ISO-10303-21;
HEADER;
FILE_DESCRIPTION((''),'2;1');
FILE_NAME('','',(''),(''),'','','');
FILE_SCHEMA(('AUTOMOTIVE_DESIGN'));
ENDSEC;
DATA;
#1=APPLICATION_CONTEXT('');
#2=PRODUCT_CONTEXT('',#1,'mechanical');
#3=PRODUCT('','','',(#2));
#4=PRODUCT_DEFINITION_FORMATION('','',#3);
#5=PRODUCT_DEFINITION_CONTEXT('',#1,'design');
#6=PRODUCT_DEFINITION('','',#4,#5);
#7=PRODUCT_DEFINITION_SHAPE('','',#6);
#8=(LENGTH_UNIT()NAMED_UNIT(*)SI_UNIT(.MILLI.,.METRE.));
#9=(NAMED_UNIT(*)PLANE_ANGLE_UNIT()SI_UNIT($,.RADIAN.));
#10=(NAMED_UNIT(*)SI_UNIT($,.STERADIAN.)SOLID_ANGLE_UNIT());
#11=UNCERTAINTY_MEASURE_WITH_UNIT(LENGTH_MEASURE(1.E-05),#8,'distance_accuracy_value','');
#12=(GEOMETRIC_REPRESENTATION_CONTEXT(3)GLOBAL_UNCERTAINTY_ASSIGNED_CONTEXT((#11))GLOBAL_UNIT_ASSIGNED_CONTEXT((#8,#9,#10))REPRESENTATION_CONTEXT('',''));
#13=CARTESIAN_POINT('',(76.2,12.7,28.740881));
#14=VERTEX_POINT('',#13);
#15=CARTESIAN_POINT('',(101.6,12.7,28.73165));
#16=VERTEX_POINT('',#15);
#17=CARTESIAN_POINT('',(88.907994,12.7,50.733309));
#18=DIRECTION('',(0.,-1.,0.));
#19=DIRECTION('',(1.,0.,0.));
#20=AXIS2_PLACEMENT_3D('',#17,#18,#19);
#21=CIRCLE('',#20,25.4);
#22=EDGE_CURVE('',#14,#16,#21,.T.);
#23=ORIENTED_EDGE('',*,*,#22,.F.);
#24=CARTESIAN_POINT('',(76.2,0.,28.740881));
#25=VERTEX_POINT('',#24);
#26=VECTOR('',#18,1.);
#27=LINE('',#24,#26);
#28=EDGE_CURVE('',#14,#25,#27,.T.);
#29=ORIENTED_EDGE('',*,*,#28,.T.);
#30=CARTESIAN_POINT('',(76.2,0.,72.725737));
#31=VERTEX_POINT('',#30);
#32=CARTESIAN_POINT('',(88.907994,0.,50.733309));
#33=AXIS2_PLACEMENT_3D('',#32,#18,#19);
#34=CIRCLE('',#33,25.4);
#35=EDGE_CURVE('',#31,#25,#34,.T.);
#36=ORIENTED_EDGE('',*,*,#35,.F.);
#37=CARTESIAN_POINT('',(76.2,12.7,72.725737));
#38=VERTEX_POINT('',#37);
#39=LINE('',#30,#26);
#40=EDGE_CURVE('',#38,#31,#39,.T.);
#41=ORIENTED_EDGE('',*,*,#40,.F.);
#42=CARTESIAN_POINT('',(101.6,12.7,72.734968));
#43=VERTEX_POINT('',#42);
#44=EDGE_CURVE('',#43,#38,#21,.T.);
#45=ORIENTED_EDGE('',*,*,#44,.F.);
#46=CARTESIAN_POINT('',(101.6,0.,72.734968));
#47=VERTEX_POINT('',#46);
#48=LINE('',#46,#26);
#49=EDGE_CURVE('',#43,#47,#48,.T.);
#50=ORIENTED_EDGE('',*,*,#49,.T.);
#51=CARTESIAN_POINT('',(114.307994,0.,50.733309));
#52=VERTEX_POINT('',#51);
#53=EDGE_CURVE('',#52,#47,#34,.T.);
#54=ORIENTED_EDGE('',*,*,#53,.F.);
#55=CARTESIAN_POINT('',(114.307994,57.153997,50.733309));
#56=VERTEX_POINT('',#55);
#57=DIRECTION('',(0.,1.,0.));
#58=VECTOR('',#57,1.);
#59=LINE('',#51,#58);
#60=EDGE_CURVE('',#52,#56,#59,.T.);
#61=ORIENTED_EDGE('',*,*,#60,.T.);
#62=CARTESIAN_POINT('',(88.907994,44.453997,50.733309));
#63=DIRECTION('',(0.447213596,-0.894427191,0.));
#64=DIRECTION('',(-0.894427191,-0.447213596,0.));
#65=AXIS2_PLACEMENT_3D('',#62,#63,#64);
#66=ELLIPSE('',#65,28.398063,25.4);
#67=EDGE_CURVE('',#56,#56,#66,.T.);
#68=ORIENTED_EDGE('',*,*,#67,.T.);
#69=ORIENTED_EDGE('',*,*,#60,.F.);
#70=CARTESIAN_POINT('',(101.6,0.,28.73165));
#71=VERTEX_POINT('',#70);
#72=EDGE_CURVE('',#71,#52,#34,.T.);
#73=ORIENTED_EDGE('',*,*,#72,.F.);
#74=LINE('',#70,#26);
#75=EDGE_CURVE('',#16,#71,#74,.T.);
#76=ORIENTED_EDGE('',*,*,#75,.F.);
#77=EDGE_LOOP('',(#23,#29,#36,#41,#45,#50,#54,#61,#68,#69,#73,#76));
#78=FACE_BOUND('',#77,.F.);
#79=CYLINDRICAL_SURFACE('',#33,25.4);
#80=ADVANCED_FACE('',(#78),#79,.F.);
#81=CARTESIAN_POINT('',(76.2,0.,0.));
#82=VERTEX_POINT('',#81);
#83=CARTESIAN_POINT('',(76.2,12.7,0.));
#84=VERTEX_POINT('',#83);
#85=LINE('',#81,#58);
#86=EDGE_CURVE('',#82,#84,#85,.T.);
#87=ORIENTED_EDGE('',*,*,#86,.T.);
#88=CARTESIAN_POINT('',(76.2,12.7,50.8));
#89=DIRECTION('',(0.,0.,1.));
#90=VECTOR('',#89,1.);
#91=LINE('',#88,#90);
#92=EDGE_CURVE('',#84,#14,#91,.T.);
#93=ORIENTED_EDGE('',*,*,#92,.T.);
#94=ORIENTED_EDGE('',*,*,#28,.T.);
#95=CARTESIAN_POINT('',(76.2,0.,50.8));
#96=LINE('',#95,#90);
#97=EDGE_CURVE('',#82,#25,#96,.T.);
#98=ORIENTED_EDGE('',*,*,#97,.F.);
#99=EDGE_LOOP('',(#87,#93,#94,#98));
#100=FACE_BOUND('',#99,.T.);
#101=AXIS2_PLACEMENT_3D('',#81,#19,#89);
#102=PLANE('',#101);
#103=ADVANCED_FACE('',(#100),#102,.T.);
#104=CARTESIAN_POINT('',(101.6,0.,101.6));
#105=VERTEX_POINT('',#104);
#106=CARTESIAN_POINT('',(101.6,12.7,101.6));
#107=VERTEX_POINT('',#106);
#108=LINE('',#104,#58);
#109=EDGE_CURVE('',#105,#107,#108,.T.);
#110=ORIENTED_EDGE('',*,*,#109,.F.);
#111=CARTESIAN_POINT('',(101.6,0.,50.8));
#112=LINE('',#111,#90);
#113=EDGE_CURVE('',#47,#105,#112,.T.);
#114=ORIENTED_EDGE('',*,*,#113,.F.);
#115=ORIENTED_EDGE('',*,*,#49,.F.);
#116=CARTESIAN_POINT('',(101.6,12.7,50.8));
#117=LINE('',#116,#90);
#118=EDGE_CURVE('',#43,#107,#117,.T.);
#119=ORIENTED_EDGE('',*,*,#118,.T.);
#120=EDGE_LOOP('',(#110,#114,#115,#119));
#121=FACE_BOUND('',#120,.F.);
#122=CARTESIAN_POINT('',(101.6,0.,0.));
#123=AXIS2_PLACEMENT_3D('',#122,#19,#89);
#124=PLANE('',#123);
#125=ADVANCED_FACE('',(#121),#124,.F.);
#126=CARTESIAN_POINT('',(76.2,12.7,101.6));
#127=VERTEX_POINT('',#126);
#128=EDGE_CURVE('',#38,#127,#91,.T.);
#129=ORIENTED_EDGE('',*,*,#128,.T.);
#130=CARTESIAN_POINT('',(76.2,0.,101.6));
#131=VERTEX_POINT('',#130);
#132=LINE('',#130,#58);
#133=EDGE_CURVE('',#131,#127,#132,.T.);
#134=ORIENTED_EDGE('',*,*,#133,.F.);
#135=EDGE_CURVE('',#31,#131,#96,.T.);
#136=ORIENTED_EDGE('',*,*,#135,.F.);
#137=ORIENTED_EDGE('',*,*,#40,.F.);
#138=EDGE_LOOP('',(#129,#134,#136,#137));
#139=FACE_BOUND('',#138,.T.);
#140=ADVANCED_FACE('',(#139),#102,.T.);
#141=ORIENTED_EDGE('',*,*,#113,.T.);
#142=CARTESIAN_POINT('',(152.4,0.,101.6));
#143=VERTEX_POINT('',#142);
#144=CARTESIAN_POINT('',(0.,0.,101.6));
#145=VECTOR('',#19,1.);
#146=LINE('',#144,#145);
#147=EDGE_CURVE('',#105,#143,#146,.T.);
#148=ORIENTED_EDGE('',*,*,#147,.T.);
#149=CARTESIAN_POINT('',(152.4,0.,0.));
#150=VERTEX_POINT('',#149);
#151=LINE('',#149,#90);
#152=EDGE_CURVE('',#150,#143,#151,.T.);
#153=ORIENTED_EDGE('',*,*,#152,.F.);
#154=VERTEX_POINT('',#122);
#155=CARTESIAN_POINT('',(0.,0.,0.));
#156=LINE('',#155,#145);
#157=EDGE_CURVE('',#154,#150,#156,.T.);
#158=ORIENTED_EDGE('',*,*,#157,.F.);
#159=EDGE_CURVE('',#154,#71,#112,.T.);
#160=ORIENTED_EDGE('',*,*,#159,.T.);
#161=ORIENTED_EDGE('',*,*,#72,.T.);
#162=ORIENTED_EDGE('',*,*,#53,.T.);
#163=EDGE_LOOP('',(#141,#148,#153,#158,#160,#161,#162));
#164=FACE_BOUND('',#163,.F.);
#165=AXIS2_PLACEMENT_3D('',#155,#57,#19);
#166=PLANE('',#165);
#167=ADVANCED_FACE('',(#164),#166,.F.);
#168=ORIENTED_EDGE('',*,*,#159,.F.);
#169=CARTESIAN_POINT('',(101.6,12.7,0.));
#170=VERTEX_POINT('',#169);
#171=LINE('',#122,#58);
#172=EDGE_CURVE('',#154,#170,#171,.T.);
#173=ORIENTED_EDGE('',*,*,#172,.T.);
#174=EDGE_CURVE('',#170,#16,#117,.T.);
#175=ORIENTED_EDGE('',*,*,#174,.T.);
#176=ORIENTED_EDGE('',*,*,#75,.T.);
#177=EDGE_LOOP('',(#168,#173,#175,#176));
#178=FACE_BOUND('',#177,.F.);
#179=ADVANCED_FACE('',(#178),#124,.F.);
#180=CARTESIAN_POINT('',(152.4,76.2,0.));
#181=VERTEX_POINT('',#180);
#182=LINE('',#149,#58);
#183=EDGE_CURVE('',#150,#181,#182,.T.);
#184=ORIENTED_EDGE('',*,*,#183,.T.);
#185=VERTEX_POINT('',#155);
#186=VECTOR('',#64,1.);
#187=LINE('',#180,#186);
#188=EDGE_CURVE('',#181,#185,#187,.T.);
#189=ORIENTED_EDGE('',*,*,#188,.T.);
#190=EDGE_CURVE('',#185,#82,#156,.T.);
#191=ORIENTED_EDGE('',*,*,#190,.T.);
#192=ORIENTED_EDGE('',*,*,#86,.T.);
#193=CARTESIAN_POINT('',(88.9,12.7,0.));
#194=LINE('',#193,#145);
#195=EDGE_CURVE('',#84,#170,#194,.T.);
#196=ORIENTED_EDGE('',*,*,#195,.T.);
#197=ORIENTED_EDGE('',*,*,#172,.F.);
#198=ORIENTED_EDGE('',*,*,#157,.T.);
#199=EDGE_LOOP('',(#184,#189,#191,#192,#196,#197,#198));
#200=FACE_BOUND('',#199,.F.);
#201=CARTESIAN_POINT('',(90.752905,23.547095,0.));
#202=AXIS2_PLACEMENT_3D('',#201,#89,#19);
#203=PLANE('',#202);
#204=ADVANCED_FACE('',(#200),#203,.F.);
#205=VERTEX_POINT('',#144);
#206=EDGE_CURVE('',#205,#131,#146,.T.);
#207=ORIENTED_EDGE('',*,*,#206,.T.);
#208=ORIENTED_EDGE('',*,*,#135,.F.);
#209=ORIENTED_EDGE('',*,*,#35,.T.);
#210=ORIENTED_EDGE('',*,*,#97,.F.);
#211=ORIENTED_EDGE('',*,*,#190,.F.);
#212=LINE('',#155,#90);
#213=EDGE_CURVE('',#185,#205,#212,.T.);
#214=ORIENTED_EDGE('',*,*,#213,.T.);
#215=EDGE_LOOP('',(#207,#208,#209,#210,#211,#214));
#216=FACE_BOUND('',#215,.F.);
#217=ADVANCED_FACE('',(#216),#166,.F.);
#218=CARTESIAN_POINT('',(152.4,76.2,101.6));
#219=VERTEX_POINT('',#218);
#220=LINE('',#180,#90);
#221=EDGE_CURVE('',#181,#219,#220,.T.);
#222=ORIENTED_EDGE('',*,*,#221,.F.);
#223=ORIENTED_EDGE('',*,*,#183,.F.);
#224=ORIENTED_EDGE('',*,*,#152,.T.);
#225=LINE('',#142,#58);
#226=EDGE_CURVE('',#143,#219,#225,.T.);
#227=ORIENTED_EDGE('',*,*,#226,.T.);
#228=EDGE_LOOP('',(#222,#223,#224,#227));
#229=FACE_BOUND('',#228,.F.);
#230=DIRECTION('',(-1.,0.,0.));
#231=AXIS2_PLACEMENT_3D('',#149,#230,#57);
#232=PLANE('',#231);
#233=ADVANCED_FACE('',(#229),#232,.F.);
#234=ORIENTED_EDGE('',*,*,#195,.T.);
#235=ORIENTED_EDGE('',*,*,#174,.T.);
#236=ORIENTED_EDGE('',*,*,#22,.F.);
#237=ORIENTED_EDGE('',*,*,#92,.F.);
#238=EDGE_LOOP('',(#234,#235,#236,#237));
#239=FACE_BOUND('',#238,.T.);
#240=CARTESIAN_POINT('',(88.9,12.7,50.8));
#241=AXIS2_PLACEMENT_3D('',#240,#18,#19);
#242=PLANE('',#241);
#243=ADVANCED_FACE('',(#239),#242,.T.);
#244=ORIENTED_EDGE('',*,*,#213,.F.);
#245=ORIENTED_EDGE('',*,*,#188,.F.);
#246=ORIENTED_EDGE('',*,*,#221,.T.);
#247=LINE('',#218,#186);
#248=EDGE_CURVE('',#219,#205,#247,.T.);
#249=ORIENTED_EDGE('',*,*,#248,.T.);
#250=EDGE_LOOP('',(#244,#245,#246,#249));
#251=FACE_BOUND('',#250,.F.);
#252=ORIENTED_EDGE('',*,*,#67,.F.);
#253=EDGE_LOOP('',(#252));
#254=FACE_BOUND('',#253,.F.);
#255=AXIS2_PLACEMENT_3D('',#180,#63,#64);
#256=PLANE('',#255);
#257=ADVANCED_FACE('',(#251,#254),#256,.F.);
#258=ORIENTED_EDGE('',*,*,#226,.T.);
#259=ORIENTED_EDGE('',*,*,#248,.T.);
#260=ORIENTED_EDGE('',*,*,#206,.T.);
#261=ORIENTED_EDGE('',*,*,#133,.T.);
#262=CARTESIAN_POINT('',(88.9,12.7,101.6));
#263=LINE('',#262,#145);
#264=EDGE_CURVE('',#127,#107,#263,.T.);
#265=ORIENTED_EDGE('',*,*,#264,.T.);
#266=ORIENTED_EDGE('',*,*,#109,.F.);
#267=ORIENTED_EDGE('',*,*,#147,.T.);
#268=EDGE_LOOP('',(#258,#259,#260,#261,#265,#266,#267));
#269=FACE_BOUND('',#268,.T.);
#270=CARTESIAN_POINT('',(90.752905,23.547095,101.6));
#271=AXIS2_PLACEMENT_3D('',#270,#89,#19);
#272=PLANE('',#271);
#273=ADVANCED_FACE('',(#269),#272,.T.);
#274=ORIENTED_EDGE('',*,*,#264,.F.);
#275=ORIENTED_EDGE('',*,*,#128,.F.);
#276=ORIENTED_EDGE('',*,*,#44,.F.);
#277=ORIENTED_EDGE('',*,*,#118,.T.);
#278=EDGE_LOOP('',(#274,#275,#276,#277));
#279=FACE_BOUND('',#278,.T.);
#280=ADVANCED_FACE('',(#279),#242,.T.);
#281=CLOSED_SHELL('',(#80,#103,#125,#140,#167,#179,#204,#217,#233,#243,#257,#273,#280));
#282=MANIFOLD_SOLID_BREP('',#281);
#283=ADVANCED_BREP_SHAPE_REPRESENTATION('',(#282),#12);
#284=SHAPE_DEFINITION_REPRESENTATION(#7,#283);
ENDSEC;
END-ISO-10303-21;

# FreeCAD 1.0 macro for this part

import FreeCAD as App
import Part
import Sketcher
Q = App.Units.Quantity

doc = App.newDocument("Part")
body = doc.addObject("PartDesign::Body", "Body")

sketch1 = doc.addObject("Sketcher::SketchObject", "Sketch")
body.addObject(sketch1)
sketch1.AttachmentSupport = (doc.XY_Plane, [""])
sketch1.MapMode = "FlatFace"
sketch1.addGeometry([
    Part.LineSegment(App.Vector(152.4, 76.2, 0), App.Vector(0, 0, 0)),
    Part.LineSegment(App.Vector(0, 0, 0), App.Vector(152.4, 0, 0)),
    Part.LineSegment(App.Vector(152.4, 0, 0), App.Vector(152.4, 76.2, 0)),
], False)
sketch1.addConstraint([
    Sketcher.Constraint("Coincident", 0, 2, 1, 1),
    Sketcher.Constraint("Coincident", 1, 2, 2, 1),
    Sketcher.Constraint("Coincident", 2, 2, 0, 1),
    Sketcher.Constraint("Horizontal", 1),
    Sketcher.Constraint("Vertical", 2),
    Sketcher.Constraint("Coincident", 0, 2, -1, 1),
    Sketcher.Constraint("DistanceX", 1, 1, 1, 2, Q("6 in")),
    Sketcher.Constraint("DistanceY", 2, 1, 2, 2, Q("3 in")),
])
pad1 = doc.addObject("PartDesign::Pad", "Pad")
body.addObject(pad1)
pad1.Profile = sketch1
pad1.Length = Q("4 in")

sketch2 = doc.addObject("Sketcher::SketchObject", "Sketch001")
body.addObject(sketch2)
sketch2.AttachmentSupport = (doc.XZ_Plane, [""])
sketch2.MapMode = "FlatFace"
sketch2.addGeometry([
    Part.LineSegment(App.Vector(76.2, 101.6, 0), App.Vector(76.2, 0, 0)),
    Part.LineSegment(App.Vector(76.2, 0, 0), App.Vector(101.6, 0, 0)),
    Part.LineSegment(App.Vector(101.6, 0, 0), App.Vector(101.6, 101.6, 0)),
    Part.LineSegment(App.Vector(101.6, 101.6, 0), App.Vector(76.2, 101.6, 0)),
], False)
sketch2.addConstraint([
    Sketcher.Constraint("Coincident", 0, 2, 1, 1),
    Sketcher.Constraint("Coincident", 1, 2, 2, 1),
    Sketcher.Constraint("Coincident", 2, 2, 3, 1),
    Sketcher.Constraint("Coincident", 3, 2, 0, 1),
    Sketcher.Constraint("Vertical", 0),
    Sketcher.Constraint("Horizontal", 1),
    Sketcher.Constraint("Vertical", 2),
    Sketcher.Constraint("Horizontal", 3),
    Sketcher.Constraint("PointOnObject", 0, 2, -1),
    Sketcher.Constraint("DistanceX", 1, 1, 1, 2, Q("1 in")),
    Sketcher.Constraint("DistanceY", 0, 2, 0, 1, Q("4 in")),
    Sketcher.Constraint("DistanceX", -1, 1, 0, 2, Q("3 in")),
])
pocket1 = doc.addObject("PartDesign::Pocket", "Pocket")
body.addObject(pocket1)
pocket1.Profile = sketch2
pocket1.Length = Q("0.5 in")

sketch3 = doc.addObject("Sketcher::SketchObject", "Sketch002")
body.addObject(sketch3)
sketch3.AttachmentSupport = (doc.XZ_Plane, [""])
sketch3.MapMode = "FlatFace"
sketch3.addGeometry(Part.Circle(App.Vector(88.907994, 50.733309, 0), App.Vector(0, 0, 1), 25.4), False)
sketch3.addConstraint([
    Sketcher.Constraint("Diameter", 0, Q("2 in")),
    Sketcher.Constraint("DistanceY", -1, 1, 0, 3, Q("50.733309 mm")),
    Sketcher.Constraint("DistanceX", -1, 1, 0, 3, Q("88.907994 mm")),
])
pocket2 = doc.addObject("PartDesign::Pocket", "Pocket001")
body.addObject(pocket2)
pocket2.Profile = sketch3
pocket2.Type = "ThroughAll"

doc.recompute()
